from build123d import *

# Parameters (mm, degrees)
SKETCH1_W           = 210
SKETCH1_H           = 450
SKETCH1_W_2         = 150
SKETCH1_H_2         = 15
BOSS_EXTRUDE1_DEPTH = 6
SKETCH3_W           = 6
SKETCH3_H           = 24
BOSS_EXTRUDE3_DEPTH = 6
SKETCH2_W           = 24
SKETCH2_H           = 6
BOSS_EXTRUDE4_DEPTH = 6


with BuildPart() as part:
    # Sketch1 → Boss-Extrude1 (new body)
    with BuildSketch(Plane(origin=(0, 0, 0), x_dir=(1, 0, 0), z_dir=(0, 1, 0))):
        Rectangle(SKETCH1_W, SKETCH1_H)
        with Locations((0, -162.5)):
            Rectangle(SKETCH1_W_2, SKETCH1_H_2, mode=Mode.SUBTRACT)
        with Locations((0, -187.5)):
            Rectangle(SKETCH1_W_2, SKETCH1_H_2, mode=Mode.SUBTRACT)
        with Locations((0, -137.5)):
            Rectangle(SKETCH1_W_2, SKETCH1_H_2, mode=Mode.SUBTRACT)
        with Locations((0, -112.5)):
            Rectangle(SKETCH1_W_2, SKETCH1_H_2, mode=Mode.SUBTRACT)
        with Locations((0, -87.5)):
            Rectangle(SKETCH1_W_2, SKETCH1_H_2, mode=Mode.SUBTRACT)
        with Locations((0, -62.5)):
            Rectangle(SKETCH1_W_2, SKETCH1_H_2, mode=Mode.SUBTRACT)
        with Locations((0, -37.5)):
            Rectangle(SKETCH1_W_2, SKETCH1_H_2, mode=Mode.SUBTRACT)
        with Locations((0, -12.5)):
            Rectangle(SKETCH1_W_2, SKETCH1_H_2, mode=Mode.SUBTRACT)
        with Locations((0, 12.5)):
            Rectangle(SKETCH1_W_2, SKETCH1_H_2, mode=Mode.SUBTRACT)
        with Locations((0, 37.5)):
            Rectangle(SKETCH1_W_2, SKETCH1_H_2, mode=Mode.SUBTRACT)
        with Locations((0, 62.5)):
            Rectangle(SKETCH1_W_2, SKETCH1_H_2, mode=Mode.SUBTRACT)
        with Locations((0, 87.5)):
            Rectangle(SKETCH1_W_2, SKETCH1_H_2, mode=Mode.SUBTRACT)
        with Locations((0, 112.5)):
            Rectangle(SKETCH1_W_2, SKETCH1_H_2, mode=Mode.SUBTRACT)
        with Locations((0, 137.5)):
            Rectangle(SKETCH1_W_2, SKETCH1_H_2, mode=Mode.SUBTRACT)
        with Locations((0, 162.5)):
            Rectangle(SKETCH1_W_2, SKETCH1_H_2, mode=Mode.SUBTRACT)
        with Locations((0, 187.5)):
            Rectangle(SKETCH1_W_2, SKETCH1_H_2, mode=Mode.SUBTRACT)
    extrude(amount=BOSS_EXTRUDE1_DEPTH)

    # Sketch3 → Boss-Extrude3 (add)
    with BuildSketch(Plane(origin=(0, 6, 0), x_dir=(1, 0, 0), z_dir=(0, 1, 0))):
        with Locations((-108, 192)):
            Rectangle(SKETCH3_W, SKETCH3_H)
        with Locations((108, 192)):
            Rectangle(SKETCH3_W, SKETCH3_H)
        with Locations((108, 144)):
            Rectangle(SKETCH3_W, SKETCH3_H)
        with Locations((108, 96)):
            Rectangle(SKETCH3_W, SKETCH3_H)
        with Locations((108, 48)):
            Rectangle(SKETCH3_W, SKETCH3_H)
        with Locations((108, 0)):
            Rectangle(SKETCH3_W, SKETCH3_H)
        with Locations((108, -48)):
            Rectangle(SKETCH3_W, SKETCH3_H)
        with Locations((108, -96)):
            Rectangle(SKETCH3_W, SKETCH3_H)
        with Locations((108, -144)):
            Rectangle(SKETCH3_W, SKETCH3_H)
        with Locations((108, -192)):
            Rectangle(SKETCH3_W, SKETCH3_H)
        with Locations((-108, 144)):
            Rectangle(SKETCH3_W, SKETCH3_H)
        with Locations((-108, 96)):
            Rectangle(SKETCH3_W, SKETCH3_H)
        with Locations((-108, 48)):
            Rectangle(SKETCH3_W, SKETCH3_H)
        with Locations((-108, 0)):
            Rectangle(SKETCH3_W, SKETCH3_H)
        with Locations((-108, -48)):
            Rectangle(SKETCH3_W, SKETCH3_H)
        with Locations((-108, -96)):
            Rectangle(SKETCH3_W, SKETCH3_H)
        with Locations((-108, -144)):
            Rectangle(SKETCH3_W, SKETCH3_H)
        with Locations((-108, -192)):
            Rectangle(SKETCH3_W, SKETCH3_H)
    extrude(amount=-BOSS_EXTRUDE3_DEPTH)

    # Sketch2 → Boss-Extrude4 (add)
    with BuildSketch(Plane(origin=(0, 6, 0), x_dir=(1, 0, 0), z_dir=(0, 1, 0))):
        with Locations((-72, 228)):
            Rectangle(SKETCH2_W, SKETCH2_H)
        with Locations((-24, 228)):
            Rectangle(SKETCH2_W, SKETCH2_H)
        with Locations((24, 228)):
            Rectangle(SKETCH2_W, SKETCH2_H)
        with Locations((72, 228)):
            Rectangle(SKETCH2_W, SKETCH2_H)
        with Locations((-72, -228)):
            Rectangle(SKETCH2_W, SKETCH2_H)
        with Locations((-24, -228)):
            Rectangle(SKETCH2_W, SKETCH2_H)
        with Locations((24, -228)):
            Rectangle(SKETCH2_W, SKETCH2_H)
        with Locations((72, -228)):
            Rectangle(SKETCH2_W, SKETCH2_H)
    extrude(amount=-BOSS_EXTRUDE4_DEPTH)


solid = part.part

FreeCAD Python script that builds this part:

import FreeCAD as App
import Part
import Sketcher

doc = App.newDocument("Part")
body = doc.addObject("PartDesign::Body", "Body")

# Sketch on XZ plane
sketch1 = doc.addObject("Sketcher::SketchObject", "Sketch")
body.addObject(sketch1)
sketch1.AttachmentSupport = (doc.XZ_Plane, [""])
sketch1.MapMode = "FlatFace"
sketch1.addGeometry([
    Part.LineSegment(App.Vector(-105, -225, 0), App.Vector(-105, 225, 0)),  # 0
    Part.LineSegment(App.Vector(-105, 225, 0), App.Vector(105, 225, 0)),  # 1
    Part.LineSegment(App.Vector(105, 225, 0), App.Vector(105, -225, 0)),  # 2
    Part.LineSegment(App.Vector(105, -225, 0), App.Vector(-105, -225, 0)),  # 3
    Part.LineSegment(App.Vector(75, 195, 0), App.Vector(-75, 195, 0)),  # 4
    Part.LineSegment(App.Vector(-75, 195, 0), App.Vector(-75, 180, 0)),  # 5
    Part.LineSegment(App.Vector(-75, 180, 0), App.Vector(75, 180, 0)),  # 6
    Part.LineSegment(App.Vector(75, 180, 0), App.Vector(75, 195, 0)),  # 7
    Part.LineSegment(App.Vector(75, 170, 0), App.Vector(-75, 170, 0)),  # 8
    Part.LineSegment(App.Vector(-75, 170, 0), App.Vector(-75, 155, 0)),  # 9
    Part.LineSegment(App.Vector(-75, 155, 0), App.Vector(75, 155, 0)),  # 10
    Part.LineSegment(App.Vector(75, 155, 0), App.Vector(75, 170, 0)),  # 11
    Part.LineSegment(App.Vector(75, 145, 0), App.Vector(-75, 145, 0)),  # 12
    Part.LineSegment(App.Vector(-75, 145, 0), App.Vector(-75, 130, 0)),  # 13
    Part.LineSegment(App.Vector(-75, 130, 0), App.Vector(75, 130, 0)),  # 14
    Part.LineSegment(App.Vector(75, 130, 0), App.Vector(75, 145, 0)),  # 15
    Part.LineSegment(App.Vector(75, 120, 0), App.Vector(-75, 120, 0)),  # 16
    Part.LineSegment(App.Vector(-75, 120, 0), App.Vector(-75, 105, 0)),  # 17
    Part.LineSegment(App.Vector(-75, 105, 0), App.Vector(75, 105, 0)),  # 18
    Part.LineSegment(App.Vector(75, 105, 0), App.Vector(75, 120, 0)),  # 19
    Part.LineSegment(App.Vector(75, 95, 0), App.Vector(-75, 95, 0)),  # 20
    Part.LineSegment(App.Vector(-75, 95, 0), App.Vector(-75, 80, 0)),  # 21
    Part.LineSegment(App.Vector(-75, 80, 0), App.Vector(75, 80, 0)),  # 22
    Part.LineSegment(App.Vector(75, 80, 0), App.Vector(75, 95, 0)),  # 23
    Part.LineSegment(App.Vector(75, 70, 0), App.Vector(-75, 70, 0)),  # 24
    Part.LineSegment(App.Vector(-75, 70, 0), App.Vector(-75, 55, 0)),  # 25
    Part.LineSegment(App.Vector(-75, 55, 0), App.Vector(75, 55, 0)),  # 26
    Part.LineSegment(App.Vector(75, 55, 0), App.Vector(75, 70, 0)),  # 27
    Part.LineSegment(App.Vector(75, 45, 0), App.Vector(-75, 45, 0)),  # 28
    Part.LineSegment(App.Vector(-75, 45, 0), App.Vector(-75, 30, 0)),  # 29
    Part.LineSegment(App.Vector(-75, 30, 0), App.Vector(75, 30, 0)),  # 30
    Part.LineSegment(App.Vector(75, 30, 0), App.Vector(75, 45, 0)),  # 31
    Part.LineSegment(App.Vector(75, 20, 0), App.Vector(-75, 20, 0)),  # 32
    Part.LineSegment(App.Vector(-75, 20, 0), App.Vector(-75, 5, 0)),  # 33
    Part.LineSegment(App.Vector(-75, 5, 0), App.Vector(75, 5, 0)),  # 34
    Part.LineSegment(App.Vector(75, 5, 0), App.Vector(75, 20, 0)),  # 35
    Part.LineSegment(App.Vector(75, -5, 0), App.Vector(-75, -5, 0)),  # 36
    Part.LineSegment(App.Vector(-75, -5, 0), App.Vector(-75, -20, 0)),  # 37
    Part.LineSegment(App.Vector(-75, -20, 0), App.Vector(75, -20, 0)),  # 38
    Part.LineSegment(App.Vector(75, -20, 0), App.Vector(75, -5, 0)),  # 39
    Part.LineSegment(App.Vector(75, -30, 0), App.Vector(-75, -30, 0)),  # 40
    Part.LineSegment(App.Vector(-75, -30, 0), App.Vector(-75, -45, 0)),  # 41
    Part.LineSegment(App.Vector(-75, -45, 0), App.Vector(75, -45, 0)),  # 42
    Part.LineSegment(App.Vector(75, -45, 0), App.Vector(75, -30, 0)),  # 43
    Part.LineSegment(App.Vector(75, -55, 0), App.Vector(-75, -55, 0)),  # 44
    Part.LineSegment(App.Vector(-75, -55, 0), App.Vector(-75, -70, 0)),  # 45
    Part.LineSegment(App.Vector(-75, -70, 0), App.Vector(75, -70, 0)),  # 46
    Part.LineSegment(App.Vector(75, -70, 0), App.Vector(75, -55, 0)),  # 47
    Part.LineSegment(App.Vector(75, -80, 0), App.Vector(-75, -80, 0)),  # 48
    Part.LineSegment(App.Vector(-75, -80, 0), App.Vector(-75, -95, 0)),  # 49
    Part.LineSegment(App.Vector(-75, -95, 0), App.Vector(75, -95, 0)),  # 50
    Part.LineSegment(App.Vector(75, -95, 0), App.Vector(75, -80, 0)),  # 51
    Part.LineSegment(App.Vector(75, -105, 0), App.Vector(-75, -105, 0)),  # 52
    Part.LineSegment(App.Vector(-75, -105, 0), App.Vector(-75, -120, 0)),  # 53
    Part.LineSegment(App.Vector(-75, -120, 0), App.Vector(75, -120, 0)),  # 54
    Part.LineSegment(App.Vector(75, -120, 0), App.Vector(75, -105, 0)),  # 55
    Part.LineSegment(App.Vector(75, -130, 0), App.Vector(-75, -130, 0)),  # 56
    Part.LineSegment(App.Vector(-75, -130, 0), App.Vector(-75, -145, 0)),  # 57
    Part.LineSegment(App.Vector(-75, -145, 0), App.Vector(75, -145, 0)),  # 58
    Part.LineSegment(App.Vector(75, -145, 0), App.Vector(75, -130, 0)),  # 59
    Part.LineSegment(App.Vector(75, -155, 0), App.Vector(-75, -155, 0)),  # 60
    Part.LineSegment(App.Vector(-75, -155, 0), App.Vector(-75, -170, 0)),  # 61
    Part.LineSegment(App.Vector(-75, -170, 0), App.Vector(75, -170, 0)),  # 62
    Part.LineSegment(App.Vector(75, -170, 0), App.Vector(75, -155, 0)),  # 63
    Part.LineSegment(App.Vector(75, -180, 0), App.Vector(-75, -180, 0)),  # 64
    Part.LineSegment(App.Vector(-75, -180, 0), App.Vector(-75, -195, 0)),  # 65
    Part.LineSegment(App.Vector(-75, -195, 0), App.Vector(75, -195, 0)),  # 66
    Part.LineSegment(App.Vector(75, -195, 0), App.Vector(75, -180, 0)),  # 67
], False)
sketch1.addConstraint([
    Sketcher.Constraint("Coincident", 0, 2, 1, 1),
    Sketcher.Constraint("Coincident", 1, 2, 2, 1),
    Sketcher.Constraint("Coincident", 2, 2, 3, 1),
    Sketcher.Constraint("Coincident", 3, 2, 0, 1),
    Sketcher.Constraint("Coincident", 4, 2, 5, 1),
    Sketcher.Constraint("Coincident", 5, 2, 6, 1),
    Sketcher.Constraint("Coincident", 6, 2, 7, 1),
    Sketcher.Constraint("Coincident", 7, 2, 4, 1),
    Sketcher.Constraint("Coincident", 8, 2, 9, 1),
    Sketcher.Constraint("Coincident", 9, 2, 10, 1),
    Sketcher.Constraint("Coincident", 10, 2, 11, 1),
    Sketcher.Constraint("Coincident", 11, 2, 8, 1),
    Sketcher.Constraint("Coincident", 12, 2, 13, 1),
    Sketcher.Constraint("Coincident", 13, 2, 14, 1),
    Sketcher.Constraint("Coincident", 14, 2, 15, 1),
    Sketcher.Constraint("Coincident", 15, 2, 12, 1),
    Sketcher.Constraint("Coincident", 16, 2, 17, 1),
    Sketcher.Constraint("Coincident", 17, 2, 18, 1),
    Sketcher.Constraint("Coincident", 18, 2, 19, 1),
    Sketcher.Constraint("Coincident", 19, 2, 16, 1),
    Sketcher.Constraint("Coincident", 20, 2, 21, 1),
    Sketcher.Constraint("Coincident", 21, 2, 22, 1),
    Sketcher.Constraint("Coincident", 22, 2, 23, 1),
    Sketcher.Constraint("Coincident", 23, 2, 20, 1),
    Sketcher.Constraint("Coincident", 24, 2, 25, 1),
    Sketcher.Constraint("Coincident", 25, 2, 26, 1),
    Sketcher.Constraint("Coincident", 26, 2, 27, 1),
    Sketcher.Constraint("Coincident", 27, 2, 24, 1),
    Sketcher.Constraint("Coincident", 28, 2, 29, 1),
    Sketcher.Constraint("Coincident", 29, 2, 30, 1),
    Sketcher.Constraint("Coincident", 30, 2, 31, 1),
    Sketcher.Constraint("Coincident", 31, 2, 28, 1),
    Sketcher.Constraint("Coincident", 32, 2, 33, 1),
    Sketcher.Constraint("Coincident", 33, 2, 34, 1),
    Sketcher.Constraint("Coincident", 34, 2, 35, 1),
    Sketcher.Constraint("Coincident", 35, 2, 32, 1),
    Sketcher.Constraint("Coincident", 36, 2, 37, 1),
    Sketcher.Constraint("Coincident", 37, 2, 38, 1),
    Sketcher.Constraint("Coincident", 38, 2, 39, 1),
    Sketcher.Constraint("Coincident", 39, 2, 36, 1),
    Sketcher.Constraint("Coincident", 40, 2, 41, 1),
    Sketcher.Constraint("Coincident", 41, 2, 42, 1),
    Sketcher.Constraint("Coincident", 42, 2, 43, 1),
    Sketcher.Constraint("Coincident", 43, 2, 40, 1),
    Sketcher.Constraint("Coincident", 44, 2, 45, 1),
    Sketcher.Constraint("Coincident", 45, 2, 46, 1),
    Sketcher.Constraint("Coincident", 46, 2, 47, 1),
    Sketcher.Constraint("Coincident", 47, 2, 44, 1),
    Sketcher.Constraint("Coincident", 48, 2, 49, 1),
    Sketcher.Constraint("Coincident", 49, 2, 50, 1),
    Sketcher.Constraint("Coincident", 50, 2, 51, 1),
    Sketcher.Constraint("Coincident", 51, 2, 48, 1),
    Sketcher.Constraint("Coincident", 52, 2, 53, 1),
    Sketcher.Constraint("Coincident", 53, 2, 54, 1),
    Sketcher.Constraint("Coincident", 54, 2, 55, 1),
    Sketcher.Constraint("Coincident", 55, 2, 52, 1),
    Sketcher.Constraint("Coincident", 56, 2, 57, 1),
    Sketcher.Constraint("Coincident", 57, 2, 58, 1),
    Sketcher.Constraint("Coincident", 58, 2, 59, 1),
    Sketcher.Constraint("Coincident", 59, 2, 56, 1),
    Sketcher.Constraint("Coincident", 60, 2, 61, 1),
    Sketcher.Constraint("Coincident", 61, 2, 62, 1),
    Sketcher.Constraint("Coincident", 62, 2, 63, 1),
    Sketcher.Constraint("Coincident", 63, 2, 60, 1),
    Sketcher.Constraint("Coincident", 64, 2, 65, 1),
    Sketcher.Constraint("Coincident", 65, 2, 66, 1),
    Sketcher.Constraint("Coincident", 66, 2, 67, 1),
    Sketcher.Constraint("Coincident", 67, 2, 64, 1),
    Sketcher.Constraint("Vertical", 0),
    Sketcher.Constraint("Horizontal", 1),
    Sketcher.Constraint("Vertical", 2),
    Sketcher.Constraint("Horizontal", 3),
    Sketcher.Constraint("Horizontal", 4),
    Sketcher.Constraint("Vertical", 5),
    Sketcher.Constraint("Horizontal", 6),
    Sketcher.Constraint("Vertical", 7),
    Sketcher.Constraint("Horizontal", 8),
    Sketcher.Constraint("Vertical", 9),
    Sketcher.Constraint("Horizontal", 10),
    Sketcher.Constraint("Vertical", 11),
    Sketcher.Constraint("Horizontal", 12),
    Sketcher.Constraint("Vertical", 13),
    Sketcher.Constraint("Horizontal", 14),
    Sketcher.Constraint("Vertical", 15),
    Sketcher.Constraint("Horizontal", 16),
    Sketcher.Constraint("Vertical", 17),
    Sketcher.Constraint("Horizontal", 18),
    Sketcher.Constraint("Vertical", 19),
    Sketcher.Constraint("Horizontal", 20),
    Sketcher.Constraint("Vertical", 21),
    Sketcher.Constraint("Horizontal", 22),
    Sketcher.Constraint("Vertical", 23),
    Sketcher.Constraint("Horizontal", 24),
    Sketcher.Constraint("Vertical", 25),
    Sketcher.Constraint("Horizontal", 26),
    Sketcher.Constraint("Vertical", 27),
    Sketcher.Constraint("Horizontal", 28),
    Sketcher.Constraint("Vertical", 29),
    Sketcher.Constraint("Horizontal", 30),
    Sketcher.Constraint("Vertical", 31),
    Sketcher.Constraint("Horizontal", 32),
    Sketcher.Constraint("Vertical", 33),
    Sketcher.Constraint("Horizontal", 34),
    Sketcher.Constraint("Vertical", 35),
    Sketcher.Constraint("Horizontal", 36),
    Sketcher.Constraint("Vertical", 37),
    Sketcher.Constraint("Horizontal", 38),
    Sketcher.Constraint("Vertical", 39),
    Sketcher.Constraint("Horizontal", 40),
    Sketcher.Constraint("Vertical", 41),
    Sketcher.Constraint("Horizontal", 42),
    Sketcher.Constraint("Vertical", 43),
    Sketcher.Constraint("Horizontal", 44),
    Sketcher.Constraint("Vertical", 45),
    Sketcher.Constraint("Horizontal", 46),
    Sketcher.Constraint("Vertical", 47),
    Sketcher.Constraint("Horizontal", 48),
    Sketcher.Constraint("Vertical", 49),
    Sketcher.Constraint("Horizontal", 50),
    Sketcher.Constraint("Vertical", 51),
    Sketcher.Constraint("Horizontal", 52),
    Sketcher.Constraint("Vertical", 53),
    Sketcher.Constraint("Horizontal", 54),
    Sketcher.Constraint("Vertical", 55),
    Sketcher.Constraint("Horizontal", 56),
    Sketcher.Constraint("Vertical", 57),
    Sketcher.Constraint("Horizontal", 58),
    Sketcher.Constraint("Vertical", 59),
    Sketcher.Constraint("Horizontal", 60),
    Sketcher.Constraint("Vertical", 61),
    Sketcher.Constraint("Horizontal", 62),
    Sketcher.Constraint("Vertical", 63),
    Sketcher.Constraint("Horizontal", 64),
    Sketcher.Constraint("Vertical", 65),
    Sketcher.Constraint("Horizontal", 66),
    Sketcher.Constraint("Vertical", 67),
    Sketcher.Constraint("Symmetric", 0, 2, 2, 2, -1, 1),
    Sketcher.Constraint("Symmetric", 34, 2, 36, 2, -1, 1),
    Sketcher.Constraint("Symmetric", 32, 2, 38, 2, -1, 1),
    Sketcher.Constraint("Symmetric", 30, 2, 40, 2, -1, 1),
    Sketcher.Constraint("Symmetric", 28, 2, 42, 2, -1, 1),
    Sketcher.Constraint("Symmetric", 26, 2, 44, 2, -1, 1),
    Sketcher.Constraint("Symmetric", 24, 2, 46, 2, -1, 1),
    Sketcher.Constraint("Symmetric", 22, 2, 48, 2, -1, 1),
    Sketcher.Constraint("Symmetric", 20, 2, 50, 2, -1, 1),
    Sketcher.Constraint("Symmetric", 18, 2, 52, 2, -1, 1),
    Sketcher.Constraint("Symmetric", 16, 2, 54, 2, -1, 1),
    Sketcher.Constraint("Symmetric", 14, 2, 56, 2, -1, 1),
    Sketcher.Constraint("Symmetric", 12, 2, 58, 2, -1, 1),
    Sketcher.Constraint("Symmetric", 10, 2, 60, 2, -1, 1),
    Sketcher.Constraint("Symmetric", 8, 2, 62, 2, -1, 1),
    Sketcher.Constraint("Symmetric", 6, 2, 64, 2, -1, 1),
    Sketcher.Constraint("Symmetric", 4, 2, 66, 2, -1, 1),
    Sketcher.Constraint("Vertical", 5, 2, 8, 2),
    Sketcher.Constraint("Vertical", 7, 2, 10, 2),
    Sketcher.Constraint("Vertical", 9, 2, 12, 2),
    Sketcher.Constraint("Vertical", 11, 2, 14, 2),
    Sketcher.Constraint("Vertical", 13, 2, 16, 2),
    Sketcher.Constraint("Vertical", 15, 2, 18, 2),
    Sketcher.Constraint("Vertical", 17, 2, 20, 2),
    Sketcher.Constraint("Vertical", 19, 2, 22, 2),
    Sketcher.Constraint("Vertical", 21, 2, 24, 2),
    Sketcher.Constraint("Vertical", 23, 2, 26, 2),
    Sketcher.Constraint("Vertical", 25, 2, 28, 2),
    Sketcher.Constraint("Vertical", 27, 2, 30, 2),
    Sketcher.Constraint("Vertical", 29, 2, 32, 2),
    Sketcher.Constraint("Vertical", 31, 2, 34, 2),
    Sketcher.Constraint("Vertical", 33, 2, 36, 2),
    Sketcher.Constraint("Equal", 7, 9),
    Sketcher.Constraint("Equal", 11, 13),
    Sketcher.Constraint("Equal", 15, 17),
    Sketcher.Constraint("Equal", 19, 21),
    Sketcher.Constraint("Equal", 23, 25),
    Sketcher.Constraint("Equal", 27, 29),
    Sketcher.Constraint("Equal", 31, 33),
    Sketcher.Constraint("DistanceX", 1, 1, 1, 2, 210.0),
    Sketcher.Constraint("DistanceX", 4, 2, 4, 1, 150.0),
    Sketcher.Constraint("DistanceY", 0, 1, 0, 2, 450.0),
    Sketcher.Constraint("DistanceY", 5, 2, 5, 1, 15.0),
    Sketcher.Constraint("DistanceY", -1, 1, 4, 2, 195.0),
    Sketcher.Constraint("DistanceY", -1, 1, 8, 2, 170.0),
    Sketcher.Constraint("DistanceY", -1, 1, 12, 2, 145.0),
    Sketcher.Constraint("DistanceY", -1, 1, 16, 2, 120.0),
    Sketcher.Constraint("DistanceY", -1, 1, 20, 2, 95.0),
    Sketcher.Constraint("DistanceY", -1, 1, 24, 2, 70.0),
    Sketcher.Constraint("DistanceY", -1, 1, 28, 2, 45.0),
    Sketcher.Constraint("DistanceY", -1, 1, 32, 2, 20.0),
])
pad1 = doc.addObject("PartDesign::Pad", "Pad")
body.addObject(pad1)
pad1.Profile = sketch1
pad1.Length = 6
pad1.Reversed = True

# Sketch on XZ plane
sketch2 = doc.addObject("Sketcher::SketchObject", "Sketch001")
body.addObject(sketch2)
sketch2.AttachmentSupport = (doc.XZ_Plane, [""])
sketch2.MapMode = "FlatFace"
sketch2.AttachmentOffset = App.Placement(App.Vector(0, 0, -6), App.Rotation())
sketch2.addGeometry([
    Part.LineSegment(App.Vector(-111, -204, 0), App.Vector(-111, -180, 0)),  # 0
    Part.LineSegment(App.Vector(-111, -180, 0), App.Vector(-105, -180, 0)),  # 1
    Part.LineSegment(App.Vector(-105, -180, 0), App.Vector(-105, -204, 0)),  # 2
    Part.LineSegment(App.Vector(-105, -204, 0), App.Vector(-111, -204, 0)),  # 3
    Part.LineSegment(App.Vector(105, -204, 0), App.Vector(105, -180, 0)),  # 4
    Part.LineSegment(App.Vector(105, -180, 0), App.Vector(111, -180, 0)),  # 5
    Part.LineSegment(App.Vector(111, -180, 0), App.Vector(111, -204, 0)),  # 6
    Part.LineSegment(App.Vector(111, -204, 0), App.Vector(105, -204, 0)),  # 7
    Part.LineSegment(App.Vector(105, -156, 0), App.Vector(105, -132, 0)),  # 8
    Part.LineSegment(App.Vector(105, -132, 0), App.Vector(111, -132, 0)),  # 9
    Part.LineSegment(App.Vector(111, -132, 0), App.Vector(111, -156, 0)),  # 10
    Part.LineSegment(App.Vector(111, -156, 0), App.Vector(105, -156, 0)),  # 11
    Part.LineSegment(App.Vector(105, -108, 0), App.Vector(105, -84, 0)),  # 12
    Part.LineSegment(App.Vector(105, -84, 0), App.Vector(111, -84, 0)),  # 13
    Part.LineSegment(App.Vector(111, -84, 0), App.Vector(111, -108, 0)),  # 14
    Part.LineSegment(App.Vector(111, -108, 0), App.Vector(105, -108, 0)),  # 15
    Part.LineSegment(App.Vector(105, -60, 0), App.Vector(105, -36, 0)),  # 16
    Part.LineSegment(App.Vector(105, -36, 0), App.Vector(111, -36, 0)),  # 17
    Part.LineSegment(App.Vector(111, -36, 0), App.Vector(111, -60, 0)),  # 18
    Part.LineSegment(App.Vector(111, -60, 0), App.Vector(105, -60, 0)),  # 19
    Part.LineSegment(App.Vector(105, -12, 0), App.Vector(105, 12, 0)),  # 20
    Part.LineSegment(App.Vector(105, 12, 0), App.Vector(111, 12, 0)),  # 21
    Part.LineSegment(App.Vector(111, 12, 0), App.Vector(111, -12, 0)),  # 22
    Part.LineSegment(App.Vector(111, -12, 0), App.Vector(105, -12, 0)),  # 23
    Part.LineSegment(App.Vector(105, 36, 0), App.Vector(105, 60, 0)),  # 24
    Part.LineSegment(App.Vector(105, 60, 0), App.Vector(111, 60, 0)),  # 25
    Part.LineSegment(App.Vector(111, 60, 0), App.Vector(111, 36, 0)),  # 26
    Part.LineSegment(App.Vector(111, 36, 0), App.Vector(105, 36, 0)),  # 27
    Part.LineSegment(App.Vector(105, 84, 0), App.Vector(105, 108, 0)),  # 28
    Part.LineSegment(App.Vector(105, 108, 0), App.Vector(111, 108, 0)),  # 29
    Part.LineSegment(App.Vector(111, 108, 0), App.Vector(111, 84, 0)),  # 30
    Part.LineSegment(App.Vector(111, 84, 0), App.Vector(105, 84, 0)),  # 31
    Part.LineSegment(App.Vector(105, 132, 0), App.Vector(105, 156, 0)),  # 32
    Part.LineSegment(App.Vector(105, 156, 0), App.Vector(111, 156, 0)),  # 33
    Part.LineSegment(App.Vector(111, 156, 0), App.Vector(111, 132, 0)),  # 34
    Part.LineSegment(App.Vector(111, 132, 0), App.Vector(105, 132, 0)),  # 35
    Part.LineSegment(App.Vector(105, 180, 0), App.Vector(105, 204, 0)),  # 36
    Part.LineSegment(App.Vector(105, 204, 0), App.Vector(111, 204, 0)),  # 37
    Part.LineSegment(App.Vector(111, 204, 0), App.Vector(111, 180, 0)),  # 38
    Part.LineSegment(App.Vector(111, 180, 0), App.Vector(105, 180, 0)),  # 39
    Part.LineSegment(App.Vector(-111, -156, 0), App.Vector(-111, -132, 0)),  # 40
    Part.LineSegment(App.Vector(-111, -132, 0), App.Vector(-105, -132, 0)),  # 41
    Part.LineSegment(App.Vector(-105, -132, 0), App.Vector(-105, -156, 0)),  # 42
    Part.LineSegment(App.Vector(-105, -156, 0), App.Vector(-111, -156, 0)),  # 43
    Part.LineSegment(App.Vector(-111, -108, 0), App.Vector(-111, -84, 0)),  # 44
    Part.LineSegment(App.Vector(-111, -84, 0), App.Vector(-105, -84, 0)),  # 45
    Part.LineSegment(App.Vector(-105, -84, 0), App.Vector(-105, -108, 0)),  # 46
    Part.LineSegment(App.Vector(-105, -108, 0), App.Vector(-111, -108, 0)),  # 47
    Part.LineSegment(App.Vector(-111, -60, 0), App.Vector(-111, -36, 0)),  # 48
    Part.LineSegment(App.Vector(-111, -36, 0), App.Vector(-105, -36, 0)),  # 49
    Part.LineSegment(App.Vector(-105, -36, 0), App.Vector(-105, -60, 0)),  # 50
    Part.LineSegment(App.Vector(-105, -60, 0), App.Vector(-111, -60, 0)),  # 51
    Part.LineSegment(App.Vector(-111, -12, 0), App.Vector(-111, 12, 0)),  # 52
    Part.LineSegment(App.Vector(-111, 12, 0), App.Vector(-105, 12, 0)),  # 53
    Part.LineSegment(App.Vector(-105, 12, 0), App.Vector(-105, -12, 0)),  # 54
    Part.LineSegment(App.Vector(-105, -12, 0), App.Vector(-111, -12, 0)),  # 55
    Part.LineSegment(App.Vector(-111, 36, 0), App.Vector(-111, 60, 0)),  # 56
    Part.LineSegment(App.Vector(-111, 60, 0), App.Vector(-105, 60, 0)),  # 57
    Part.LineSegment(App.Vector(-105, 60, 0), App.Vector(-105, 36, 0)),  # 58
    Part.LineSegment(App.Vector(-105, 36, 0), App.Vector(-111, 36, 0)),  # 59
    Part.LineSegment(App.Vector(-111, 84, 0), App.Vector(-111, 108, 0)),  # 60
    Part.LineSegment(App.Vector(-111, 108, 0), App.Vector(-105, 108, 0)),  # 61
    Part.LineSegment(App.Vector(-105, 108, 0), App.Vector(-105, 84, 0)),  # 62
    Part.LineSegment(App.Vector(-105, 84, 0), App.Vector(-111, 84, 0)),  # 63
    Part.LineSegment(App.Vector(-111, 132, 0), App.Vector(-111, 156, 0)),  # 64
    Part.LineSegment(App.Vector(-111, 156, 0), App.Vector(-105, 156, 0)),  # 65
    Part.LineSegment(App.Vector(-105, 156, 0), App.Vector(-105, 132, 0)),  # 66
    Part.LineSegment(App.Vector(-105, 132, 0), App.Vector(-111, 132, 0)),  # 67
    Part.LineSegment(App.Vector(-111, 180, 0), App.Vector(-111, 204, 0)),  # 68
    Part.LineSegment(App.Vector(-111, 204, 0), App.Vector(-105, 204, 0)),  # 69
    Part.LineSegment(App.Vector(-105, 204, 0), App.Vector(-105, 180, 0)),  # 70
    Part.LineSegment(App.Vector(-105, 180, 0), App.Vector(-111, 180, 0)),  # 71
], False)
sketch2.addConstraint([
    Sketcher.Constraint("Coincident", 0, 2, 1, 1),
    Sketcher.Constraint("Coincident", 1, 2, 2, 1),
    Sketcher.Constraint("Coincident", 2, 2, 3, 1),
    Sketcher.Constraint("Coincident", 3, 2, 0, 1),
    Sketcher.Constraint("Coincident", 4, 2, 5, 1),
    Sketcher.Constraint("Coincident", 5, 2, 6, 1),
    Sketcher.Constraint("Coincident", 6, 2, 7, 1),
    Sketcher.Constraint("Coincident", 7, 2, 4, 1),
    Sketcher.Constraint("Coincident", 8, 2, 9, 1),
    Sketcher.Constraint("Coincident", 9, 2, 10, 1),
    Sketcher.Constraint("Coincident", 10, 2, 11, 1),
    Sketcher.Constraint("Coincident", 11, 2, 8, 1),
    Sketcher.Constraint("Coincident", 12, 2, 13, 1),
    Sketcher.Constraint("Coincident", 13, 2, 14, 1),
    Sketcher.Constraint("Coincident", 14, 2, 15, 1),
    Sketcher.Constraint("Coincident", 15, 2, 12, 1),
    Sketcher.Constraint("Coincident", 16, 2, 17, 1),
    Sketcher.Constraint("Coincident", 17, 2, 18, 1),
    Sketcher.Constraint("Coincident", 18, 2, 19, 1),
    Sketcher.Constraint("Coincident", 19, 2, 16, 1),
    Sketcher.Constraint("Coincident", 20, 2, 21, 1),
    Sketcher.Constraint("Coincident", 21, 2, 22, 1),
    Sketcher.Constraint("Coincident", 22, 2, 23, 1),
    Sketcher.Constraint("Coincident", 23, 2, 20, 1),
    Sketcher.Constraint("Coincident", 24, 2, 25, 1),
    Sketcher.Constraint("Coincident", 25, 2, 26, 1),
    Sketcher.Constraint("Coincident", 26, 2, 27, 1),
    Sketcher.Constraint("Coincident", 27, 2, 24, 1),
    Sketcher.Constraint("Coincident", 28, 2, 29, 1),
    Sketcher.Constraint("Coincident", 29, 2, 30, 1),
    Sketcher.Constraint("Coincident", 30, 2, 31, 1),
    Sketcher.Constraint("Coincident", 31, 2, 28, 1),
    Sketcher.Constraint("Coincident", 32, 2, 33, 1),
    Sketcher.Constraint("Coincident", 33, 2, 34, 1),
    Sketcher.Constraint("Coincident", 34, 2, 35, 1),
    Sketcher.Constraint("Coincident", 35, 2, 32, 1),
    Sketcher.Constraint("Coincident", 36, 2, 37, 1),
    Sketcher.Constraint("Coincident", 37, 2, 38, 1),
    Sketcher.Constraint("Coincident", 38, 2, 39, 1),
    Sketcher.Constraint("Coincident", 39, 2, 36, 1),
    Sketcher.Constraint("Coincident", 40, 2, 41, 1),
    Sketcher.Constraint("Coincident", 41, 2, 42, 1),
    Sketcher.Constraint("Coincident", 42, 2, 43, 1),
    Sketcher.Constraint("Coincident", 43, 2, 40, 1),
    Sketcher.Constraint("Coincident", 44, 2, 45, 1),
    Sketcher.Constraint("Coincident", 45, 2, 46, 1),
    Sketcher.Constraint("Coincident", 46, 2, 47, 1),
    Sketcher.Constraint("Coincident", 47, 2, 44, 1),
    Sketcher.Constraint("Coincident", 48, 2, 49, 1),
    Sketcher.Constraint("Coincident", 49, 2, 50, 1),
    Sketcher.Constraint("Coincident", 50, 2, 51, 1),
    Sketcher.Constraint("Coincident", 51, 2, 48, 1),
    Sketcher.Constraint("Coincident", 52, 2, 53, 1),
    Sketcher.Constraint("Coincident", 53, 2, 54, 1),
    Sketcher.Constraint("Coincident", 54, 2, 55, 1),
    Sketcher.Constraint("Coincident", 55, 2, 52, 1),
    Sketcher.Constraint("Coincident", 56, 2, 57, 1),
    Sketcher.Constraint("Coincident", 57, 2, 58, 1),
    Sketcher.Constraint("Coincident", 58, 2, 59, 1),
    Sketcher.Constraint("Coincident", 59, 2, 56, 1),
    Sketcher.Constraint("Coincident", 60, 2, 61, 1),
    Sketcher.Constraint("Coincident", 61, 2, 62, 1),
    Sketcher.Constraint("Coincident", 62, 2, 63, 1),
    Sketcher.Constraint("Coincident", 63, 2, 60, 1),
    Sketcher.Constraint("Coincident", 64, 2, 65, 1),
    Sketcher.Constraint("Coincident", 65, 2, 66, 1),
    Sketcher.Constraint("Coincident", 66, 2, 67, 1),
    Sketcher.Constraint("Coincident", 67, 2, 64, 1),
    Sketcher.Constraint("Coincident", 68, 2, 69, 1),
    Sketcher.Constraint("Coincident", 69, 2, 70, 1),
    Sketcher.Constraint("Coincident", 70, 2, 71, 1),
    Sketcher.Constraint("Coincident", 71, 2, 68, 1),
    Sketcher.Constraint("Vertical", 0),
    Sketcher.Constraint("Horizontal", 1),
    Sketcher.Constraint("Vertical", 2),
    Sketcher.Constraint("Horizontal", 3),
    Sketcher.Constraint("Vertical", 4),
    Sketcher.Constraint("Horizontal", 5),
    Sketcher.Constraint("Vertical", 6),
    Sketcher.Constraint("Horizontal", 7),
    Sketcher.Constraint("Vertical", 8),
    Sketcher.Constraint("Horizontal", 9),
    Sketcher.Constraint("Vertical", 10),
    Sketcher.Constraint("Horizontal", 11),
    Sketcher.Constraint("Vertical", 12),
    Sketcher.Constraint("Horizontal", 13),
    Sketcher.Constraint("Vertical", 14),
    Sketcher.Constraint("Horizontal", 15),
    Sketcher.Constraint("Vertical", 16),
    Sketcher.Constraint("Horizontal", 17),
    Sketcher.Constraint("Vertical", 18),
    Sketcher.Constraint("Horizontal", 19),
    Sketcher.Constraint("Vertical", 20),
    Sketcher.Constraint("Horizontal", 21),
    Sketcher.Constraint("Vertical", 22),
    Sketcher.Constraint("Horizontal", 23),
    Sketcher.Constraint("Vertical", 24),
    Sketcher.Constraint("Horizontal", 25),
    Sketcher.Constraint("Vertical", 26),
    Sketcher.Constraint("Horizontal", 27),
    Sketcher.Constraint("Vertical", 28),
    Sketcher.Constraint("Horizontal", 29),
    Sketcher.Constraint("Vertical", 30),
    Sketcher.Constraint("Horizontal", 31),
    Sketcher.Constraint("Vertical", 32),
    Sketcher.Constraint("Horizontal", 33),
    Sketcher.Constraint("Vertical", 34),
    Sketcher.Constraint("Horizontal", 35),
    Sketcher.Constraint("Vertical", 36),
    Sketcher.Constraint("Horizontal", 37),
    Sketcher.Constraint("Vertical", 38),
    Sketcher.Constraint("Horizontal", 39),
    Sketcher.Constraint("Vertical", 40),
    Sketcher.Constraint("Horizontal", 41),
    Sketcher.Constraint("Vertical", 42),
    Sketcher.Constraint("Horizontal", 43),
    Sketcher.Constraint("Vertical", 44),
    Sketcher.Constraint("Horizontal", 45),
    Sketcher.Constraint("Vertical", 46),
    Sketcher.Constraint("Horizontal", 47),
    Sketcher.Constraint("Vertical", 48),
    Sketcher.Constraint("Horizontal", 49),
    Sketcher.Constraint("Vertical", 50),
    Sketcher.Constraint("Horizontal", 51),
    Sketcher.Constraint("Vertical", 52),
    Sketcher.Constraint("Horizontal", 53),
    Sketcher.Constraint("Vertical", 54),
    Sketcher.Constraint("Horizontal", 55),
    Sketcher.Constraint("Vertical", 56),
    Sketcher.Constraint("Horizontal", 57),
    Sketcher.Constraint("Vertical", 58),
    Sketcher.Constraint("Horizontal", 59),
    Sketcher.Constraint("Vertical", 60),
    Sketcher.Constraint("Horizontal", 61),
    Sketcher.Constraint("Vertical", 62),
    Sketcher.Constraint("Horizontal", 63),
    Sketcher.Constraint("Vertical", 64),
    Sketcher.Constraint("Horizontal", 65),
    Sketcher.Constraint("Vertical", 66),
    Sketcher.Constraint("Horizontal", 67),
    Sketcher.Constraint("Vertical", 68),
    Sketcher.Constraint("Horizontal", 69),
    Sketcher.Constraint("Vertical", 70),
    Sketcher.Constraint("Horizontal", 71),
    Sketcher.Constraint("Symmetric", 2, 2, 36, 2, -1, 1),
    Sketcher.Constraint("Symmetric", 0, 2, 38, 2, -1, 1),
    Sketcher.Constraint("Symmetric", 34, 2, 40, 2, -1, 1),
    Sketcher.Constraint("Symmetric", 32, 2, 42, 2, -1, 1),
    Sketcher.Constraint("Symmetric", 30, 2, 44, 2, -1, 1),
    Sketcher.Constraint("Symmetric", 28, 2, 46, 2, -1, 1),
    Sketcher.Constraint("Symmetric", 26, 2, 48, 2, -1, 1),
    Sketcher.Constraint("Symmetric", 24, 2, 50, 2, -1, 1),
    Sketcher.Constraint("Symmetric", 22, 2, 52, 2, -1, 1),
    Sketcher.Constraint("Symmetric", 20, 2, 54, 2, -1, 1),
    Sketcher.Constraint("Symmetric", 18, 2, 56, 2, -1, 1),
    Sketcher.Constraint("Symmetric", 16, 2, 58, 2, -1, 1),
    Sketcher.Constraint("Symmetric", 14, 2, 60, 2, -1, 1),
    Sketcher.Constraint("Symmetric", 12, 2, 62, 2, -1, 1),
    Sketcher.Constraint("Symmetric", 10, 2, 64, 2, -1, 1),
    Sketcher.Constraint("Symmetric", 8, 2, 66, 2, -1, 1),
    Sketcher.Constraint("Symmetric", 6, 2, 68, 2, -1, 1),
    Sketcher.Constraint("Symmetric", 4, 2, 70, 2, -1, 1),
    Sketcher.Constraint("Symmetric", 1, 2, 4, 2, -2),
    Sketcher.Constraint("Symmetric", 3, 2, 6, 2, -2),
    Sketcher.Constraint("Symmetric", 9, 2, 40, 2, -2),
    Sketcher.Constraint("Symmetric", 11, 2, 42, 2, -2),
    Sketcher.Constraint("Symmetric", 13, 2, 44, 2, -2),
    Sketcher.Constraint("Symmetric", 15, 2, 46, 2, -2),
    Sketcher.Constraint("Symmetric", 17, 2, 48, 2, -2),
    Sketcher.Constraint("Symmetric", 19, 2, 50, 2, -2),
    Sketcher.Constraint("Horizontal", 21, 2, 52, 2),
    Sketcher.Constraint("Vertical", 7, 2, 8, 2),
    Sketcher.Constraint("Vertical", 6, 2, 9, 2),
    Sketcher.Constraint("Vertical", 11, 2, 12, 2),
    Sketcher.Constraint("Vertical", 10, 2, 13, 2),
    Sketcher.Constraint("Vertical", 15, 2, 16, 2),
    Sketcher.Constraint("Vertical", 14, 2, 17, 2),
    Sketcher.Constraint("Vertical", 19, 2, 20, 2),
    Sketcher.Constraint("Vertical", 18, 2, 21, 2),
    Sketcher.Constraint("Equal", 6, 8),
    Sketcher.Constraint("Equal", 10, 12),
    Sketcher.Constraint("Equal", 14, 16),
    Sketcher.Constraint("Equal", 18, 20),
    Sketcher.Constraint("DistanceX", 1, 1, 1, 2, 6.0),
    Sketcher.Constraint("DistanceY", 0, 1, 0, 2, 24.0),
    Sketcher.Constraint("DistanceX", 0, 2, -1, 1, 111.0),
    Sketcher.Constraint("DistanceY", 0, 2, -1, 1, 180.0),
    Sketcher.Constraint("DistanceY", 8, 2, -1, 1, 132.0),
    Sketcher.Constraint("DistanceY", 12, 2, -1, 1, 84.0),
    Sketcher.Constraint("DistanceY", 16, 2, -1, 1, 36.0),
])
pad2 = doc.addObject("PartDesign::Pad", "Pad001")
body.addObject(pad2)
pad2.Profile = sketch2
pad2.Length = 6

# Sketch on XZ plane
sketch3 = doc.addObject("Sketcher::SketchObject", "Sketch002")
body.addObject(sketch3)
sketch3.AttachmentSupport = (doc.XZ_Plane, [""])
sketch3.MapMode = "FlatFace"
sketch3.AttachmentOffset = App.Placement(App.Vector(0, 0, -6), App.Rotation())
sketch3.addGeometry([
    Part.LineSegment(App.Vector(-84, -231, 0), App.Vector(-84, -225, 0)),  # 0
    Part.LineSegment(App.Vector(-84, -225, 0), App.Vector(-60, -225, 0)),  # 1
    Part.LineSegment(App.Vector(-60, -225, 0), App.Vector(-60, -231, 0)),  # 2
    Part.LineSegment(App.Vector(-60, -231, 0), App.Vector(-84, -231, 0)),  # 3
    Part.LineSegment(App.Vector(-36, -231, 0), App.Vector(-36, -225, 0)),  # 4
    Part.LineSegment(App.Vector(-36, -225, 0), App.Vector(-12, -225, 0)),  # 5
    Part.LineSegment(App.Vector(-12, -225, 0), App.Vector(-12, -231, 0)),  # 6
    Part.LineSegment(App.Vector(-12, -231, 0), App.Vector(-36, -231, 0)),  # 7
    Part.LineSegment(App.Vector(12, -231, 0), App.Vector(12, -225, 0)),  # 8
    Part.LineSegment(App.Vector(12, -225, 0), App.Vector(36, -225, 0)),  # 9
    Part.LineSegment(App.Vector(36, -225, 0), App.Vector(36, -231, 0)),  # 10
    Part.LineSegment(App.Vector(36, -231, 0), App.Vector(12, -231, 0)),  # 11
    Part.LineSegment(App.Vector(60, -231, 0), App.Vector(60, -225, 0)),  # 12
    Part.LineSegment(App.Vector(60, -225, 0), App.Vector(84, -225, 0)),  # 13
    Part.LineSegment(App.Vector(84, -225, 0), App.Vector(84, -231, 0)),  # 14
    Part.LineSegment(App.Vector(84, -231, 0), App.Vector(60, -231, 0)),  # 15
    Part.LineSegment(App.Vector(-84, 225, 0), App.Vector(-84, 231, 0)),  # 16
    Part.LineSegment(App.Vector(-84, 231, 0), App.Vector(-60, 231, 0)),  # 17
    Part.LineSegment(App.Vector(-60, 231, 0), App.Vector(-60, 225, 0)),  # 18
    Part.LineSegment(App.Vector(-60, 225, 0), App.Vector(-84, 225, 0)),  # 19
    Part.LineSegment(App.Vector(-36, 225, 0), App.Vector(-36, 231, 0)),  # 20
    Part.LineSegment(App.Vector(-36, 231, 0), App.Vector(-12, 231, 0)),  # 21
    Part.LineSegment(App.Vector(-12, 231, 0), App.Vector(-12, 225, 0)),  # 22
    Part.LineSegment(App.Vector(-12, 225, 0), App.Vector(-36, 225, 0)),  # 23
    Part.LineSegment(App.Vector(12, 225, 0), App.Vector(12, 231, 0)),  # 24
    Part.LineSegment(App.Vector(12, 231, 0), App.Vector(36, 231, 0)),  # 25
    Part.LineSegment(App.Vector(36, 231, 0), App.Vector(36, 225, 0)),  # 26
    Part.LineSegment(App.Vector(36, 225, 0), App.Vector(12, 225, 0)),  # 27
    Part.LineSegment(App.Vector(60, 225, 0), App.Vector(60, 231, 0)),  # 28
    Part.LineSegment(App.Vector(60, 231, 0), App.Vector(84, 231, 0)),  # 29
    Part.LineSegment(App.Vector(84, 231, 0), App.Vector(84, 225, 0)),  # 30
    Part.LineSegment(App.Vector(84, 225, 0), App.Vector(60, 225, 0)),  # 31
], False)
sketch3.addConstraint([
    Sketcher.Constraint("Coincident", 0, 2, 1, 1),
    Sketcher.Constraint("Coincident", 1, 2, 2, 1),
    Sketcher.Constraint("Coincident", 2, 2, 3, 1),
    Sketcher.Constraint("Coincident", 3, 2, 0, 1),
    Sketcher.Constraint("Coincident", 4, 2, 5, 1),
    Sketcher.Constraint("Coincident", 5, 2, 6, 1),
    Sketcher.Constraint("Coincident", 6, 2, 7, 1),
    Sketcher.Constraint("Coincident", 7, 2, 4, 1),
    Sketcher.Constraint("Coincident", 8, 2, 9, 1),
    Sketcher.Constraint("Coincident", 9, 2, 10, 1),
    Sketcher.Constraint("Coincident", 10, 2, 11, 1),
    Sketcher.Constraint("Coincident", 11, 2, 8, 1),
    Sketcher.Constraint("Coincident", 12, 2, 13, 1),
    Sketcher.Constraint("Coincident", 13, 2, 14, 1),
    Sketcher.Constraint("Coincident", 14, 2, 15, 1),
    Sketcher.Constraint("Coincident", 15, 2, 12, 1),
    Sketcher.Constraint("Coincident", 16, 2, 17, 1),
    Sketcher.Constraint("Coincident", 17, 2, 18, 1),
    Sketcher.Constraint("Coincident", 18, 2, 19, 1),
    Sketcher.Constraint("Coincident", 19, 2, 16, 1),
    Sketcher.Constraint("Coincident", 20, 2, 21, 1),
    Sketcher.Constraint("Coincident", 21, 2, 22, 1),
    Sketcher.Constraint("Coincident", 22, 2, 23, 1),
    Sketcher.Constraint("Coincident", 23, 2, 20, 1),
    Sketcher.Constraint("Coincident", 24, 2, 25, 1),
    Sketcher.Constraint("Coincident", 25, 2, 26, 1),
    Sketcher.Constraint("Coincident", 26, 2, 27, 1),
    Sketcher.Constraint("Coincident", 27, 2, 24, 1),
    Sketcher.Constraint("Coincident", 28, 2, 29, 1),
    Sketcher.Constraint("Coincident", 29, 2, 30, 1),
    Sketcher.Constraint("Coincident", 30, 2, 31, 1),
    Sketcher.Constraint("Coincident", 31, 2, 28, 1),
    Sketcher.Constraint("Vertical", 0),
    Sketcher.Constraint("Horizontal", 1),
    Sketcher.Constraint("Vertical", 2),
    Sketcher.Constraint("Horizontal", 3),
    Sketcher.Constraint("Vertical", 4),
    Sketcher.Constraint("Horizontal", 5),
    Sketcher.Constraint("Vertical", 6),
    Sketcher.Constraint("Horizontal", 7),
    Sketcher.Constraint("Vertical", 8),
    Sketcher.Constraint("Horizontal", 9),
    Sketcher.Constraint("Vertical", 10),
    Sketcher.Constraint("Horizontal", 11),
    Sketcher.Constraint("Vertical", 12),
    Sketcher.Constraint("Horizontal", 13),
    Sketcher.Constraint("Vertical", 14),
    Sketcher.Constraint("Horizontal", 15),
    Sketcher.Constraint("Vertical", 16),
    Sketcher.Constraint("Horizontal", 17),
    Sketcher.Constraint("Vertical", 18),
    Sketcher.Constraint("Horizontal", 19),
    Sketcher.Constraint("Vertical", 20),
    Sketcher.Constraint("Horizontal", 21),
    Sketcher.Constraint("Vertical", 22),
    Sketcher.Constraint("Horizontal", 23),
    Sketcher.Constraint("Vertical", 24),
    Sketcher.Constraint("Horizontal", 25),
    Sketcher.Constraint("Vertical", 26),
    Sketcher.Constraint("Horizontal", 27),
    Sketcher.Constraint("Vertical", 28),
    Sketcher.Constraint("Horizontal", 29),
    Sketcher.Constraint("Vertical", 30),
    Sketcher.Constraint("Horizontal", 31),
    Sketcher.Constraint("Symmetric", 14, 2, 16, 2, -1, 1),
    Sketcher.Constraint("Symmetric", 12, 2, 18, 2, -1, 1),
    Sketcher.Constraint("Symmetric", 10, 2, 20, 2, -1, 1),
    Sketcher.Constraint("Symmetric", 8, 2, 22, 2, -1, 1),
    Sketcher.Constraint("Symmetric", 6, 2, 24, 2, -1, 1),
    Sketcher.Constraint("Symmetric", 4, 2, 26, 2, -1, 1),
    Sketcher.Constraint("Symmetric", 2, 2, 28, 2, -1, 1),
    Sketcher.Constraint("Symmetric", 0, 2, 30, 2, -1, 1),
    Sketcher.Constraint("Symmetric", 5, 2, 8, 2, -2),
    Sketcher.Constraint("Symmetric", 7, 2, 10, 2, -2),
    Sketcher.Constraint("Symmetric", 1, 2, 12, 2, -2),
    Sketcher.Constraint("Symmetric", 3, 2, 14, 2, -2),
    Sketcher.Constraint("Horizontal", 1, 2, 4, 2),
    Sketcher.Constraint("Horizontal", 3, 2, 6, 2),
    Sketcher.Constraint("Equal", 3, 5),
    Sketcher.Constraint("DistanceX", 1, 1, 1, 2, 24.0),
    Sketcher.Constraint("DistanceY", 0, 1, 0, 2, 6.0),
    Sketcher.Constraint("DistanceX", 0, 2, -1, 1, 84.0),
    Sketcher.Constraint("DistanceY", 0, 2, -1, 1, 225.0),
    Sketcher.Constraint("DistanceX", 4, 2, -1, 1, 36.0),
])
pad3 = doc.addObject("PartDesign::Pad", "Pad002")
body.addObject(pad3)
pad3.Profile = sketch3
pad3.Length = 6

doc.recompute()
